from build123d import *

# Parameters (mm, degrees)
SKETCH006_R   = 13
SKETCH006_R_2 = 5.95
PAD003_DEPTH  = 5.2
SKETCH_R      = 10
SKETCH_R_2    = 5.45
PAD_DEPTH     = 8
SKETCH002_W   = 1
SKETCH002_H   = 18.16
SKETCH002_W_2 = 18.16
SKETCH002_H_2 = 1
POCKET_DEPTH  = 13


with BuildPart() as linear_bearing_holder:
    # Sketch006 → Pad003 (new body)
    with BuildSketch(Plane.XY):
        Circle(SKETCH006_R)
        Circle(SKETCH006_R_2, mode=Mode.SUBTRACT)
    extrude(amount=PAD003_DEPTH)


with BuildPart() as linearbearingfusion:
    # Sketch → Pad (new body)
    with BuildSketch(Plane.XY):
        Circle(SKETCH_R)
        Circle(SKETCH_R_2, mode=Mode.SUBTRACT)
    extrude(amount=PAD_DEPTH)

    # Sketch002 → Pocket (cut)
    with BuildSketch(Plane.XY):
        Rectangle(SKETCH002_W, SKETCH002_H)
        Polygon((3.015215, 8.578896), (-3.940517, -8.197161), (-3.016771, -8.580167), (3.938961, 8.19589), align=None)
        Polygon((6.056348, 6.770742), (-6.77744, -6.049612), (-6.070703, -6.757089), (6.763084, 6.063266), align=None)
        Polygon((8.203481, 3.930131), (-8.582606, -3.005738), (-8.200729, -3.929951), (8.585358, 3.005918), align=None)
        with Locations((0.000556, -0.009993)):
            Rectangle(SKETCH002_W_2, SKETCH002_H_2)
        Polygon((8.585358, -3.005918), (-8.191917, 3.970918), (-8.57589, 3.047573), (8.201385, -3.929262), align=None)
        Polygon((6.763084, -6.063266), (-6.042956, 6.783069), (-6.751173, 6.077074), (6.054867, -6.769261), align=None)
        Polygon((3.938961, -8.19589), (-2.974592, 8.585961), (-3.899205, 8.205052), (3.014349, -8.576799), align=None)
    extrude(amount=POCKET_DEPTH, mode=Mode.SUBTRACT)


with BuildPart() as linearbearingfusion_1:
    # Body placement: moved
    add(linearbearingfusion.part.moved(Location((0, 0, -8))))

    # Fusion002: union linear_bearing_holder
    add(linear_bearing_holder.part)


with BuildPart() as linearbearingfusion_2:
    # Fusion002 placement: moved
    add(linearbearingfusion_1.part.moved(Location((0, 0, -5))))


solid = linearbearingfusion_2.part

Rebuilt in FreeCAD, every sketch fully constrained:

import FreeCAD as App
import Part
import Sketcher
from FreeCAD import Vector
Q = App.Units.Quantity


def add_polygon(sketch, points):
    """Adds a closed chain of lines whose ends are joined by coincident constraints."""
    first, n = sketch.GeometryCount, len(points)
    for a, b in zip(points, points[1:] + points[:1]):
        sketch.addGeometry(Part.LineSegment(App.Vector(*a, 0), App.Vector(*b, 0)), False)
    for i in range(n):
        sketch.addConstraint(Sketcher.Constraint("Coincident", first + i, 2, first + (i + 1) % n, 1))

doc = App.newDocument("Part")
body = doc.addObject("PartDesign::Body", "Body")

# Sketch on XY plane
sketch1 = body.newObject("Sketcher::SketchObject", "Sketch")
sketch1.AttachmentSupport = (doc.getObject("XY_Plane"), [""])
sketch1.MapMode = "FlatFace"
sketch1.addGeometry(Part.Circle(Vector(0, 0, 0), Vector(0, 0, 1), 13), False)
sketch1.addGeometry(Part.Circle(Vector(0, 0, 0), Vector(0, 0, 1), 6), False)
sketch1.addConstraint(Sketcher.Constraint("Coincident", 0, 3, -1, 1))
sketch1.addConstraint(Sketcher.Constraint("Coincident", 1, 3, -1, 1))
sketch1.addConstraint(Sketcher.Constraint("Diameter", 0, Q("26 mm")))
sketch1.addConstraint(Sketcher.Constraint("Diameter", 1, Q("11.9 mm")))
pad1 = body.newObject("PartDesign::Pad", "Pad")
pad1.Profile = sketch1
pad1.Length = 5.2
body2 = doc.addObject("PartDesign::Body", "Body001")

# Sketch on XY plane
sketch2 = body2.newObject("Sketcher::SketchObject", "Sketch001")
sketch2.AttachmentSupport = (doc.getObject("XY_Plane001"), [""])
sketch2.MapMode = "FlatFace"
sketch2.addGeometry(Part.Circle(Vector(0, 0, 0), Vector(0, 0, 1), 10), False)
sketch2.addGeometry(Part.Circle(Vector(0, 0, 0), Vector(0, 0, 1), 5), False)
sketch2.addConstraint(Sketcher.Constraint("Coincident", 0, 3, -1, 1))
sketch2.addConstraint(Sketcher.Constraint("Coincident", 1, 3, -1, 1))
sketch2.addConstraint(Sketcher.Constraint("Diameter", 0, Q("20 mm")))
sketch2.addConstraint(Sketcher.Constraint("Diameter", 1, Q("10.9 mm")))
pad2 = body2.newObject("PartDesign::Pad", "Pad001")
pad2.Profile = sketch2
pad2.Length = 8

# Sketch on XY plane
sketch3 = body2.newObject("Sketcher::SketchObject", "Sketch002")
sketch3.AttachmentSupport = (doc.getObject("XY_Plane001"), [""])
sketch3.MapMode = "FlatFace"
add_polygon(sketch3, [(-0.5, -2.5), (-0.5, -9.1), (0.5, -9.1), (0.5, -2.5), (3, -8.6), (3.9, -8.2), (1.4, -2.1), (6.1, -6.8), (6.8, -6.1), (2.1, -1.4), (8.2, -3.9), (8.6, -3), (2.6, -0.5), (9.1, -0.5), (9.1, 0.5), (2.5, 0.5), (8.6, 3), (8.2, 3.9), (2.1, 1.4), (6.8, 6.1), (6.1, 6.8), (1.4, 2.2), (3.9, 8.2), (3, 8.6), (0.5, 2.5), (0.5, 9.1), (-0.5, 9.1), (-0.5, 2.6), (-3, 8.6), (-3.9, 8.2), (-1.4, 2.1), (-6, 6.8), (-6.8, 6.1), (-2.1, 1.5), (-8.2, 4), (-8.6, 3), (-2.4, 0.5), (-9.1, 0.5), (-9.1, -0.5), (-2.5, -0.5), (-8.6, -3), (-8.2, -3.9), (-2.2, -1.4), (-6.8, -6), (-6.1, -6.8), (-1.4, -2.1), (-3.9, -8.2), (-3, -8.6)])  # lines 0-47
sketch3.addConstraint(Sketcher.Constraint("Vertical", 0))
sketch3.addConstraint(Sketcher.Constraint("Horizontal", 1))
sketch3.addConstraint(Sketcher.Constraint("Vertical", 2))
sketch3.addConstraint(Sketcher.Constraint("Horizontal", 12))
sketch3.addConstraint(Sketcher.Constraint("Vertical", 13))
sketch3.addConstraint(Sketcher.Constraint("Horizontal", 14))
sketch3.addConstraint(Sketcher.Constraint("Vertical", 24))
sketch3.addConstraint(Sketcher.Constraint("Horizontal", 25))
sketch3.addConstraint(Sketcher.Constraint("Vertical", 26))
sketch3.addConstraint(Sketcher.Constraint("Horizontal", 36))
sketch3.addConstraint(Sketcher.Constraint("Vertical", 37))
sketch3.addConstraint(Sketcher.Constraint("Horizontal", 38))
sketch3.addConstraint(Sketcher.Constraint("Symmetric", 0, 2, 24, 2, -1, 1))
sketch3.addConstraint(Sketcher.Constraint("Symmetric", 10, 2, 15, 2, -1))
sketch3.addConstraint(Sketcher.Constraint("Symmetric", 7, 2, 18, 2, -1))
sketch3.addConstraint(Sketcher.Constraint("Symmetric", 4, 2, 21, 2, -1))
sketch3.addConstraint(Sketcher.Constraint("Perpendicular", 3, 4))
sketch3.addConstraint(Sketcher.Constraint("Perpendicular", 4, 5))
sketch3.addConstraint(Sketcher.Constraint("Perpendicular", 6, 7))
sketch3.addConstraint(Sketcher.Constraint("Perpendicular", 7, 8))
sketch3.addConstraint(Sketcher.Constraint("Perpendicular", 9, 10))
sketch3.addConstraint(Sketcher.Constraint("Perpendicular", 10, 11))
sketch3.addConstraint(Sketcher.Constraint("Perpendicular", 15, 16))
sketch3.addConstraint(Sketcher.Constraint("Perpendicular", 16, 17))
sketch3.addConstraint(Sketcher.Constraint("Perpendicular", 18, 19))
sketch3.addConstraint(Sketcher.Constraint("Perpendicular", 19, 20))
sketch3.addConstraint(Sketcher.Constraint("Perpendicular", 21, 22))
sketch3.addConstraint(Sketcher.Constraint("Perpendicular", 22, 23))
sketch3.addConstraint(Sketcher.Constraint("Parallel", 5, 27))
sketch3.addConstraint(Sketcher.Constraint("Perpendicular", 27, 28))
sketch3.addConstraint(Sketcher.Constraint("Perpendicular", 28, 29))
sketch3.addConstraint(Sketcher.Constraint("Parallel", 8, 30))
sketch3.addConstraint(Sketcher.Constraint("Perpendicular", 30, 31))
sketch3.addConstraint(Sketcher.Constraint("Perpendicular", 31, 32))
sketch3.addConstraint(Sketcher.Constraint("Parallel", 11, 33))
sketch3.addConstraint(Sketcher.Constraint("Perpendicular", 33, 34))
sketch3.addConstraint(Sketcher.Constraint("Perpendicular", 34, 35))
sketch3.addConstraint(Sketcher.Constraint("Parallel", 17, 39))
sketch3.addConstraint(Sketcher.Constraint("Perpendicular", 39, 40))
sketch3.addConstraint(Sketcher.Constraint("Perpendicular", 40, 41))
sketch3.addConstraint(Sketcher.Constraint("Parallel", 20, 42))
sketch3.addConstraint(Sketcher.Constraint("Perpendicular", 42, 43))
sketch3.addConstraint(Sketcher.Constraint("Perpendicular", 43, 44))
sketch3.addConstraint(Sketcher.Constraint("Parallel", 23, 45))
sketch3.addConstraint(Sketcher.Constraint("Perpendicular", 45, 46))
sketch3.addConstraint(Sketcher.Constraint("Perpendicular", 46, 47))
sketch3.addConstraint(Sketcher.Constraint("Horizontal", 14, 2, 35, 2))
sketch3.addConstraint(Sketcher.Constraint("Horizontal", 12, 2, 37, 2))
sketch3.addConstraint(Sketcher.Constraint("Vertical", 2, 2, 23, 2))
sketch3.addConstraint(Sketcher.Constraint("Vertical", 0, 2, 25, 2))
sketch3.addConstraint(Sketcher.Constraint("Equal", 25, 13))
sketch3.addConstraint(Sketcher.Constraint("Equal", 4, 7))
sketch3.addConstraint(Sketcher.Constraint("Equal", 7, 10))
sketch3.addConstraint(Sketcher.Constraint("Equal", 10, 16))
sketch3.addConstraint(Sketcher.Constraint("Equal", 16, 19))
sketch3.addConstraint(Sketcher.Constraint("Equal", 19, 22))
sketch3.addConstraint(Sketcher.Constraint("Equal", 22, 28))
sketch3.addConstraint(Sketcher.Constraint("Equal", 28, 31))
sketch3.addConstraint(Sketcher.Constraint("Equal", 31, 34))
sketch3.addConstraint(Sketcher.Constraint("Equal", 34, 40))
sketch3.addConstraint(Sketcher.Constraint("Equal", 40, 43))
sketch3.addConstraint(Sketcher.Constraint("Equal", 43, 46))
sketch3.addConstraint(Sketcher.Constraint("DistanceX", 1, 1, 1, 2, Q("1 mm")))
sketch3.addConstraint(Sketcher.Constraint("Distance", 4, Q("1 mm")))
sketch3.addConstraint(Sketcher.Constraint("Angle", 3, Q("-67.609999 deg")))
sketch3.addConstraint(Sketcher.Constraint("Angle", 6, Q("-45.090001 deg")))
sketch3.addConstraint(Sketcher.Constraint("Angle", 9, Q("-22.579999 deg")))
sketch3.addConstraint(Sketcher.Constraint("Angle", 15, Q("22.45 deg")))
sketch3.addConstraint(Sketcher.Constraint("Angle", 18, Q("44.970001 deg")))
sketch3.addConstraint(Sketcher.Constraint("Angle", 21, Q("67.48 deg")))
sketch3.addConstraint(Sketcher.Constraint("DistanceY", 0, 2, -1, 1, Q("9.08 mm")))
sketch3.addConstraint(Sketcher.Constraint("DistanceY", 6, 2, 9, 2, Q("2.839999 mm")))
sketch3.addConstraint(Sketcher.Constraint("DistanceX", 14, 2, 14, 1, Q("6.584168 mm")))
sketch3.addConstraint(Sketcher.Constraint("DistanceY", 0, 2, 0, 1, Q("6.569862 mm")))
sketch3.addConstraint(Sketcher.Constraint("DistanceY", 2, 1, 2, 2, Q("6.606492 mm")))
sketch3.addConstraint(Sketcher.Constraint("DistanceY", 3, 2, -1, 1, Q("8.576799 mm")))
sketch3.addConstraint(Sketcher.Constraint("DistanceX", 5, 2, 6, 2, Q("4.6079 mm")))
sketch3.addConstraint(Sketcher.Constraint("DistanceX", 7, 2, 9, 2, Q("1.438301 mm")))
sketch3.addConstraint(Sketcher.Constraint("DistanceY", 8, 2, 11, 2, Q("0.886601 mm")))
sketch3.addConstraint(Sketcher.Constraint("DistanceX", 10, 2, 12, 2, Q("0.495198 mm")))
sketch3.addConstraint(Sketcher.Constraint("DistanceY", 32, 2, 29, 2, Q("0.660102 mm")))
sketch3.addConstraint(Sketcher.Constraint("DistanceY", 34, 2, 31, 2, Q("3.029501 mm")))
sketch3.addConstraint(Sketcher.Constraint("Distance", 33, Q("6.549118 mm")))
sketch3.addConstraint(Sketcher.Constraint("Distance", 41, Q("6.541679 mm")))
sketch3.addConstraint(Sketcher.Constraint("Distance", 45, Q("6.59353 mm")))
sketch3.addConstraint(Sketcher.Constraint("DistanceX", 36, 2, 36, 1, Q("6.653762 mm")))
sketch3.addConstraint(Sketcher.Constraint("DistanceX", 38, 1, 38, 2, Q("6.537003 mm")))
sketch3.addConstraint(Sketcher.Constraint("DistanceY", 26, 2, 26, 1, Q("6.500825 mm")))
sketch3.addConstraint(Sketcher.Constraint("DistanceX", 27, 2, -1, 1, Q("2.974592 mm")))
sketch3.addConstraint(Sketcher.Constraint("DistanceX", 29, 2, -1, 1, Q("1.39086 mm")))
sketch3.addConstraint(Sketcher.Constraint("DistanceY", 39, 2, -1, 1, Q("3.005738 mm")))
sketch3.addConstraint(Sketcher.Constraint("DistanceX", 42, 2, -1, 1, Q("6.77744 mm")))
pocket1 = body2.newObject("PartDesign::Pocket", "Pocket")
pocket1.Profile = sketch3
pocket1.Length = 13
pocket1.Reversed = True
body3 = doc.addObject("PartDesign::Body", "Body002")
doc.recompute()

body2.Placement = App.Placement(Vector(0, 0, -8), App.Rotation(Vector(0, 0, 1), 0))
boolean = body3.newObject("PartDesign::Boolean", "Boolean")
boolean.Type = "Fuse"
boolean.addObjects([body2])
doc.recompute()

boolean2 = body3.newObject("PartDesign::Boolean", "Boolean001")
boolean2.Type = "Fuse"
boolean2.addObjects([body])
body4 = doc.addObject("PartDesign::Body", "Body003")
doc.recompute()

body3.Placement = App.Placement(Vector(0, 0, -5), App.Rotation(Vector(0, 0, 1), 0))
boolean3 = body4.newObject("PartDesign::Boolean", "Boolean002")
boolean3.Type = "Fuse"
boolean3.addObjects([body3])

doc.recompute()
